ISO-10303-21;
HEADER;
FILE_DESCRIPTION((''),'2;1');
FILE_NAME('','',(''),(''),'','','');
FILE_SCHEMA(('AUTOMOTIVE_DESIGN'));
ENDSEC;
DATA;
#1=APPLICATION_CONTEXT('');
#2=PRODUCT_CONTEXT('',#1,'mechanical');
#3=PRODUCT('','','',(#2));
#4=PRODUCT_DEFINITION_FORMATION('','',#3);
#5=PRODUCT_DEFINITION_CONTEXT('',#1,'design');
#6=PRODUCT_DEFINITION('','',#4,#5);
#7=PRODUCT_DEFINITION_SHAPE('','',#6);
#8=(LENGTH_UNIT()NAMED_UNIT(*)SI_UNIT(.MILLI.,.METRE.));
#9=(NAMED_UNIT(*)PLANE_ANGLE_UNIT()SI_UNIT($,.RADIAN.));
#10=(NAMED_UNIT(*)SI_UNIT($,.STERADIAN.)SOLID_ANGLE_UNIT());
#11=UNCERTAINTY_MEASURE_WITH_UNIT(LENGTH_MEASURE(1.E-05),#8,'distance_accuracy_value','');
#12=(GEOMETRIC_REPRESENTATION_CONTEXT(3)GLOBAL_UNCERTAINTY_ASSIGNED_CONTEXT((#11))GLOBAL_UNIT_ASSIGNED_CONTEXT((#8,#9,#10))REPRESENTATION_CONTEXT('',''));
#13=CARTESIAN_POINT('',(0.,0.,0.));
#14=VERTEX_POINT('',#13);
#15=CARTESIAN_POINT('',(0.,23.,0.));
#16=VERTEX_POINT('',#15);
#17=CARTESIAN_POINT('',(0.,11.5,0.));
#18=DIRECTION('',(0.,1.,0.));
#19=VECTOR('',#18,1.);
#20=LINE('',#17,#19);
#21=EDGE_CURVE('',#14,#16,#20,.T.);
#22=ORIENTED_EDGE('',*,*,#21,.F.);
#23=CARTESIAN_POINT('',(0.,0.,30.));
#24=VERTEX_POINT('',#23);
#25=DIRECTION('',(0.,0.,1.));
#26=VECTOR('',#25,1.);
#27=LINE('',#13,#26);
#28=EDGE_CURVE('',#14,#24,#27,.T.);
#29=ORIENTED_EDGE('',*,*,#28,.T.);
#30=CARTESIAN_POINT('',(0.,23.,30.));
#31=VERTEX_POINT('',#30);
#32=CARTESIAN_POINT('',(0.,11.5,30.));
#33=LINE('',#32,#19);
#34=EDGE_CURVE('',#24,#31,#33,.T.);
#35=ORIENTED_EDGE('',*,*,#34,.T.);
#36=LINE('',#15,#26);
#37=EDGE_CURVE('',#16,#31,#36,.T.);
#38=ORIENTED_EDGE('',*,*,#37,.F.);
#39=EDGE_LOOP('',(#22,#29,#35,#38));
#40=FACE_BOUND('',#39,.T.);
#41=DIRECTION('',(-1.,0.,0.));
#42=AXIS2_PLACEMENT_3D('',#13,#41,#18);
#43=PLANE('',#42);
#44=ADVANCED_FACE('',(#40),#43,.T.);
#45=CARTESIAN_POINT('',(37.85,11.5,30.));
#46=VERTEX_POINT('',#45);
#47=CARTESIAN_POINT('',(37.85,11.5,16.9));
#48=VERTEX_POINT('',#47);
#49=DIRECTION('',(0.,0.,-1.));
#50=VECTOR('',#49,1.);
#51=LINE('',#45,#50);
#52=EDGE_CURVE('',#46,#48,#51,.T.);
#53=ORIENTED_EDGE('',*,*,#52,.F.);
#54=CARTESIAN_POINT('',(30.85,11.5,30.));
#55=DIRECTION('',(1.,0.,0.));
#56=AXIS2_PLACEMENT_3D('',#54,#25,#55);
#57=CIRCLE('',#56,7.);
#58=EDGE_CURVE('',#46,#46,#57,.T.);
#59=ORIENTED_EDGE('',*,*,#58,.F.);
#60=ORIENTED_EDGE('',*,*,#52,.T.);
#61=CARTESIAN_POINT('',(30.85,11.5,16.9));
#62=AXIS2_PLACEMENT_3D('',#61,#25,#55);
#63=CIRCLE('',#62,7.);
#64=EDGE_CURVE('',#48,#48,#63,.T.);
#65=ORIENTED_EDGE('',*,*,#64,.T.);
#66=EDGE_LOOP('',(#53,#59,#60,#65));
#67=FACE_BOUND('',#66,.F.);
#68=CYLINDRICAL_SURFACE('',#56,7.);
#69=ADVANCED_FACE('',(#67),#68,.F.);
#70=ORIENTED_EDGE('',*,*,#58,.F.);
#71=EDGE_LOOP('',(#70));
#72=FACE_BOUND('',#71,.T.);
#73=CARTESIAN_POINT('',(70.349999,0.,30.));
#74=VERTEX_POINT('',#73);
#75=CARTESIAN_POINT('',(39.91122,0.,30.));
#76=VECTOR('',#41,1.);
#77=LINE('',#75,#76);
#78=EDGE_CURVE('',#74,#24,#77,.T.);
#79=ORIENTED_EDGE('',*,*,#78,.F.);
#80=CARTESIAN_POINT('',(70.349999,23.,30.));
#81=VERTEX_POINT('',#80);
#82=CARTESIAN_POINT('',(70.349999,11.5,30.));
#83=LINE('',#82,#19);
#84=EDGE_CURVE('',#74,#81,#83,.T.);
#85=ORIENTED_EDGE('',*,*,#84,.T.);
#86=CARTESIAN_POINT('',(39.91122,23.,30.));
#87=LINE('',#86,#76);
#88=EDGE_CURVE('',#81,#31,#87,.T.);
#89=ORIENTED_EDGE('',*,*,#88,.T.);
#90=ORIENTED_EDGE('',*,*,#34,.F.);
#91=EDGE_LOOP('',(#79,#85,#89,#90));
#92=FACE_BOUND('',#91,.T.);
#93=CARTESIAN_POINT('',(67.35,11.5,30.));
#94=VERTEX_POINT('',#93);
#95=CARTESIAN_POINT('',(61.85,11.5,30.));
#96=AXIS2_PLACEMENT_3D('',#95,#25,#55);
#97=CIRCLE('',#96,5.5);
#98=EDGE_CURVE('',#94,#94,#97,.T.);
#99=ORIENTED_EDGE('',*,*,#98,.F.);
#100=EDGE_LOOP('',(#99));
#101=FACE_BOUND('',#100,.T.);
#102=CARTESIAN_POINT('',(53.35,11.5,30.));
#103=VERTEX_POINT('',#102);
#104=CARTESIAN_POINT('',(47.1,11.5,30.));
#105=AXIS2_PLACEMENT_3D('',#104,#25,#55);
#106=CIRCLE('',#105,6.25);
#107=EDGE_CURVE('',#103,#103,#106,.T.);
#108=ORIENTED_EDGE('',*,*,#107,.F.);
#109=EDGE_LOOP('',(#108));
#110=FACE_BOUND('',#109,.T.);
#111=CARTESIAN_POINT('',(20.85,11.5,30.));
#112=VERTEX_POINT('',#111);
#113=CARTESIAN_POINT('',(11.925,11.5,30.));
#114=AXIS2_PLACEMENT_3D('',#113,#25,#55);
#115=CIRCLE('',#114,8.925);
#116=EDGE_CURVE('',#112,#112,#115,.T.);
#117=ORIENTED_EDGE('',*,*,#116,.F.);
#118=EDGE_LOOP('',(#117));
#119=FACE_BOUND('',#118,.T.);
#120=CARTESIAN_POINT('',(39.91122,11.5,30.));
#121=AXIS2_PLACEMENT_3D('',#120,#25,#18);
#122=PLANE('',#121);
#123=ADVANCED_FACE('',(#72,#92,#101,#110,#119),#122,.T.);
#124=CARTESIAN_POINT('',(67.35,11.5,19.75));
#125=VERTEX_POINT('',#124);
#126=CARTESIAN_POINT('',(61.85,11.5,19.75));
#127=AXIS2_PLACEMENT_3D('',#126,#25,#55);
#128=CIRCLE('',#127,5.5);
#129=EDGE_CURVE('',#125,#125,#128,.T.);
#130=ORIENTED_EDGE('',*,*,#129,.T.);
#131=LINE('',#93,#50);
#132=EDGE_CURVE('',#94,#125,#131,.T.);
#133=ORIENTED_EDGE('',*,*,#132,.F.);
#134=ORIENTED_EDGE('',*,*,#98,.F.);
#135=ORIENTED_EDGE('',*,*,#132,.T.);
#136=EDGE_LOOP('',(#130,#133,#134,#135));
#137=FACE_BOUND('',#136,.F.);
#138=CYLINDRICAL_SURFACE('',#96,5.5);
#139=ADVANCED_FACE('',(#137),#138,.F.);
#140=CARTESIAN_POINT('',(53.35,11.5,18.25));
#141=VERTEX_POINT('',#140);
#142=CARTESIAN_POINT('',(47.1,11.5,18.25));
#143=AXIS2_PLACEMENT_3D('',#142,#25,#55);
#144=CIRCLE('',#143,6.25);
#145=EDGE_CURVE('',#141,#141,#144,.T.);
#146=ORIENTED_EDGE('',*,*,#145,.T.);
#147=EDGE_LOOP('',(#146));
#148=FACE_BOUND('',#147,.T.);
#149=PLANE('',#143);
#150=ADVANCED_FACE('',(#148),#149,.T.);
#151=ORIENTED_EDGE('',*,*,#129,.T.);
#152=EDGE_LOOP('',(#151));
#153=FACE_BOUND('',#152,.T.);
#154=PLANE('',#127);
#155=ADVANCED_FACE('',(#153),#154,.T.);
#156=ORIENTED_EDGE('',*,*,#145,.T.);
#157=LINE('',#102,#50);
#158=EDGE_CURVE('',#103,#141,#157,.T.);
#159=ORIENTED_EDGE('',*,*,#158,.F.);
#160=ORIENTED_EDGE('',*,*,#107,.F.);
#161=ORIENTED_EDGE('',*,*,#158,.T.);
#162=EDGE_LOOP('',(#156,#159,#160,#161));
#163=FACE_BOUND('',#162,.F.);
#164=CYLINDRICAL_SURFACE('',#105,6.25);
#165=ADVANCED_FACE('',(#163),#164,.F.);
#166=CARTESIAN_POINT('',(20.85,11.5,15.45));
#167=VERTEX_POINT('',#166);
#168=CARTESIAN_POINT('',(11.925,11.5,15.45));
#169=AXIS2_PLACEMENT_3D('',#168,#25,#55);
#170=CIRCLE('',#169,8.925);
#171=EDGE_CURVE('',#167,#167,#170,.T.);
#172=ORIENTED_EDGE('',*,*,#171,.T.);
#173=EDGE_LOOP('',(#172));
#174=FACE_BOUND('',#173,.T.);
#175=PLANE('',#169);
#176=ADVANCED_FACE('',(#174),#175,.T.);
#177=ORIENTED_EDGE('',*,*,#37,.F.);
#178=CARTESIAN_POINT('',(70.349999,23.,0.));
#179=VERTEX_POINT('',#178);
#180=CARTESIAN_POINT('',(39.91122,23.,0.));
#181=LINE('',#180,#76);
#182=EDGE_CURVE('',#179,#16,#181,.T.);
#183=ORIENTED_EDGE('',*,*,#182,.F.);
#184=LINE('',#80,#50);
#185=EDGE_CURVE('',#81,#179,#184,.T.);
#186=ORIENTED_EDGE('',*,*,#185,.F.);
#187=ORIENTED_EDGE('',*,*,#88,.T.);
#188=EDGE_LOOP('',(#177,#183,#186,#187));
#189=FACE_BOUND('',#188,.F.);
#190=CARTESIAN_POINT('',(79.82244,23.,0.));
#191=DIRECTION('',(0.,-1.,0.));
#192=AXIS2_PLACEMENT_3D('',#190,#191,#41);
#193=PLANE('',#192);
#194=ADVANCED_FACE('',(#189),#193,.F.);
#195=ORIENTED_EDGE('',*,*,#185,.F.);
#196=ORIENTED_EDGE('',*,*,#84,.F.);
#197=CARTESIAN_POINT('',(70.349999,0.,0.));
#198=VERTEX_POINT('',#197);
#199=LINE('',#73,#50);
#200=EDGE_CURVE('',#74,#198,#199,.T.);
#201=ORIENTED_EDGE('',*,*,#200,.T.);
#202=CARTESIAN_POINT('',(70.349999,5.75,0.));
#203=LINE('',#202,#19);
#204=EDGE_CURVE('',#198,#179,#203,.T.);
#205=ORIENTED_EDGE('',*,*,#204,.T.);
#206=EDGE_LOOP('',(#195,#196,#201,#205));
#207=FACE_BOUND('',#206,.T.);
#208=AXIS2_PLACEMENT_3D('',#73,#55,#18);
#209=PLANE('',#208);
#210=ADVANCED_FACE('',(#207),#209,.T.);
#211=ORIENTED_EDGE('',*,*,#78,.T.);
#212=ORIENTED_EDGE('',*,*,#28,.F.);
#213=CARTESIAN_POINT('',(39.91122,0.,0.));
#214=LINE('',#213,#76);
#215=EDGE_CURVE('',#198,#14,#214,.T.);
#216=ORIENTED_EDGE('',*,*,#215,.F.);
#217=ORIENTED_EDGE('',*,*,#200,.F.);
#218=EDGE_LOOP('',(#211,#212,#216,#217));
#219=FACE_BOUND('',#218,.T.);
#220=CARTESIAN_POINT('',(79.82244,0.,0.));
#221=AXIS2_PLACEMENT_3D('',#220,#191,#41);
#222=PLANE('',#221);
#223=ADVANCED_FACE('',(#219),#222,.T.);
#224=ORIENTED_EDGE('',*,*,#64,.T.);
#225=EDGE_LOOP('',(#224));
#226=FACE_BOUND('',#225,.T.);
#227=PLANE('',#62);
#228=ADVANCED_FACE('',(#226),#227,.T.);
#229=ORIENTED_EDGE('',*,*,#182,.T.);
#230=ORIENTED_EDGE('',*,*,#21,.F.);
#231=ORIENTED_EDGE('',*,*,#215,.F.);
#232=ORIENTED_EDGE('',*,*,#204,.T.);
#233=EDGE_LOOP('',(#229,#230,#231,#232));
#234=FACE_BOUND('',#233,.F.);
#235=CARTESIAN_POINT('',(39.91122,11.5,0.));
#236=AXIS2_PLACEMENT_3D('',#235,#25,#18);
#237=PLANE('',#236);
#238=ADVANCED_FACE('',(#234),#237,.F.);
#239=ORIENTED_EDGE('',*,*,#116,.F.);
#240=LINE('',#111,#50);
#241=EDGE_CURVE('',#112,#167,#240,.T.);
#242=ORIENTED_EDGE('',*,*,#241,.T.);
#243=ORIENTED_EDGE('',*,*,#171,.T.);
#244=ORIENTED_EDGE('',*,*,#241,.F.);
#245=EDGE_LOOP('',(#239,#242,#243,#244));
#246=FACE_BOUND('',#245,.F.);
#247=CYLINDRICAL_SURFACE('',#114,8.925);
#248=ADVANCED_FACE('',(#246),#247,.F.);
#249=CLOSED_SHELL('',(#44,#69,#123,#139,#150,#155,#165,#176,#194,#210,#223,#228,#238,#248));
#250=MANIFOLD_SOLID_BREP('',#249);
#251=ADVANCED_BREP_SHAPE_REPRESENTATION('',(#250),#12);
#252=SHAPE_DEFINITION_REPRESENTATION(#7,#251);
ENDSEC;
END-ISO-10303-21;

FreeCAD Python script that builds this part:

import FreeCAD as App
import Part
import Sketcher

V = App.Vector


def add_polygon(sketch, points):
    """Adds a closed chain of lines whose ends are joined by coincident constraints."""
    first, n = sketch.GeometryCount, len(points)
    for a, b in zip(points, points[1:] + points[:1]):
        sketch.addGeometry(Part.LineSegment(App.Vector(*a, 0), App.Vector(*b, 0)), False)
    for i in range(n):
        sketch.addConstraint(Sketcher.Constraint("Coincident", first + i, 2, first + (i + 1) % n, 1))

doc = App.newDocument("Part")
body = doc.addObject("PartDesign::Body", "Body")

# Sketch on XY plane
sketch1 = doc.addObject("Sketcher::SketchObject", "Sketch")
body.addObject(sketch1)
sketch1.AttachmentSupport = (doc.XY_Plane, [""])
sketch1.MapMode = "FlatFace"
sketch1.AttachmentOffset = App.Placement(V(0, 0, 30), App.Rotation())
add_polygon(sketch1, [(70, 23), (70, 0), (80, 0), (80, 23)])  # lines 0-3
sketch1.addConstraint([
    Sketcher.Constraint("Vertical", 0),
    Sketcher.Constraint("Horizontal", 1),
    Sketcher.Constraint("Vertical", 2),
    Sketcher.Constraint("Horizontal", 3),
    Sketcher.Constraint("PointOnObject", 0, 2, -1),
    Sketcher.Constraint("DistanceY", 0, 2, 0, 1, 23.0),
    Sketcher.Constraint("DistanceX", -1, 1, 0, 2, 70.349999),
    Sketcher.Constraint("DistanceX", 1, 1, 1, 2, 9.472441),
])
pad1 = doc.addObject("PartDesign::Pad", "Pad")
body.addObject(pad1)
pad1.Profile = sketch1
pad1.Length = 40
pad1.Reversed = True
body2 = doc.addObject("PartDesign::Body", "Body001")

# Sketch on XY plane
sketch2 = doc.addObject("Sketcher::SketchObject", "Sketch001")
body2.addObject(sketch2)
sketch2.AttachmentSupport = (doc.getObject("XY_Plane001"), [""])
sketch2.MapMode = "FlatFace"
sketch2.AttachmentOffset = App.Placement(V(0, 0, 30), App.Rotation())
sketch2.addGeometry(Part.Circle(V(62, 12, 0), V(0, 0, 1), 6), False)
sketch2.addConstraint([
    Sketcher.Constraint("Diameter", 0, 11.0),
    Sketcher.Constraint("DistanceY", -1, 1, 0, 3, 11.5),
    Sketcher.Constraint("DistanceX", -1, 1, 0, 3, 61.85),
])
pad2 = doc.addObject("PartDesign::Pad", "Pad001")
body2.addObject(pad2)
pad2.Profile = sketch2
pad2.Length = 10.25
pad2.Reversed = True
body3 = doc.addObject("PartDesign::Body", "Body002")

# Sketch on XY plane
sketch3 = doc.addObject("Sketcher::SketchObject", "Sketch002")
body3.addObject(sketch3)
sketch3.AttachmentSupport = (doc.getObject("XY_Plane002"), [""])
sketch3.MapMode = "FlatFace"
sketch3.AttachmentOffset = App.Placement(V(0, 0, 30), App.Rotation())
sketch3.addGeometry(Part.Circle(V(47, 12, 0), V(0, 0, 1), 6), False)
sketch3.addConstraint([
    Sketcher.Constraint("Diameter", 0, 12.5),
    Sketcher.Constraint("DistanceX", -1, 1, 0, 3, 47.1),
    Sketcher.Constraint("DistanceY", -1, 1, 0, 3, 11.5),
])
pad3 = doc.addObject("PartDesign::Pad", "Pad002")
body3.addObject(pad3)
pad3.Profile = sketch3
pad3.Length = 11.75
pad3.Reversed = True
body4 = doc.addObject("PartDesign::Body", "Body003")

# Sketch on XY plane
sketch4 = doc.addObject("Sketcher::SketchObject", "Sketch003")
body4.addObject(sketch4)
sketch4.AttachmentSupport = (doc.getObject("XY_Plane003"), [""])
sketch4.MapMode = "FlatFace"
sketch4.AttachmentOffset = App.Placement(V(0, 0, 30), App.Rotation())
sketch4.addGeometry(Part.Circle(V(31, 12, 0), V(0, 0, 1), 7), False)
sketch4.addConstraint([
    Sketcher.Constraint("Diameter", 0, 14.0),
    Sketcher.Constraint("DistanceY", -1, 1, 0, 3, 11.5),
    Sketcher.Constraint("DistanceX", -1, 1, 0, 3, 30.85),
])
pad4 = doc.addObject("PartDesign::Pad", "Pad003")
body4.addObject(pad4)
pad4.Profile = sketch4
pad4.Length = 13.1
pad4.Reversed = True
body5 = doc.addObject("PartDesign::Body", "Body004")

# Sketch on XY plane
sketch5 = doc.addObject("Sketcher::SketchObject", "Sketch004")
body5.addObject(sketch5)
sketch5.AttachmentSupport = (doc.getObject("XY_Plane004"), [""])
sketch5.MapMode = "FlatFace"
sketch5.AttachmentOffset = App.Placement(V(0, 0, 30), App.Rotation())
sketch5.addGeometry(Part.Circle(V(12, 12, 0), V(0, 0, 1), 9), False)
sketch5.addConstraint([
    Sketcher.Constraint("Diameter", 0, 17.85),
    Sketcher.Constraint("DistanceY", -1, 1, 0, 3, 11.5),
    Sketcher.Constraint("DistanceX", -1, 1, 0, 3, 11.925),
])
pad5 = doc.addObject("PartDesign::Pad", "Pad004")
body5.addObject(pad5)
pad5.Profile = sketch5
pad5.Length = 14.55
pad5.Reversed = True
body6 = doc.addObject("PartDesign::Body", "Body005")

# Sketch on XY plane
sketch6 = doc.addObject("Sketcher::SketchObject", "Sketch005")
body6.addObject(sketch6)
sketch6.AttachmentSupport = (doc.getObject("XY_Plane005"), [""])
sketch6.MapMode = "FlatFace"
add_polygon(sketch6, [(0, 0), (80, 0), (80, 23), (0, 23)])  # lines 0-3
sketch6.addConstraint([
    Sketcher.Constraint("Horizontal", 0),
    Sketcher.Constraint("Vertical", 1),
    Sketcher.Constraint("Horizontal", 2),
    Sketcher.Constraint("Vertical", 3),
    Sketcher.Constraint("Coincident", 3, 2, -1, 1),
    Sketcher.Constraint("DistanceY", 1, 1, 1, 2, 23.0),
    Sketcher.Constraint("DistanceX", 0, 1, 0, 2, 79.822441),
])
pad6 = doc.addObject("PartDesign::Pad", "Pad005")
body6.addObject(pad6)
pad6.Profile = sketch6
pad6.Length = 30
doc.recompute()

boolean = doc.addObject("PartDesign::Boolean", "Boolean")
body6.addObject(boolean)
boolean.Type = "Cut"
boolean.addObjects([body5])
doc.recompute()

boolean2 = doc.addObject("PartDesign::Boolean", "Boolean001")
body6.addObject(boolean2)
boolean2.Type = "Cut"
boolean2.addObjects([body4])
doc.recompute()

boolean3 = doc.addObject("PartDesign::Boolean", "Boolean002")
body6.addObject(boolean3)
boolean3.Type = "Cut"
boolean3.addObjects([body3])
doc.recompute()

boolean4 = doc.addObject("PartDesign::Boolean", "Boolean003")
body6.addObject(boolean4)
boolean4.Type = "Cut"
boolean4.addObjects([body2])
doc.recompute()

boolean5 = doc.addObject("PartDesign::Boolean", "Boolean004")
body6.addObject(boolean5)
boolean5.Type = "Cut"
boolean5.addObjects([body])

doc.recompute()
